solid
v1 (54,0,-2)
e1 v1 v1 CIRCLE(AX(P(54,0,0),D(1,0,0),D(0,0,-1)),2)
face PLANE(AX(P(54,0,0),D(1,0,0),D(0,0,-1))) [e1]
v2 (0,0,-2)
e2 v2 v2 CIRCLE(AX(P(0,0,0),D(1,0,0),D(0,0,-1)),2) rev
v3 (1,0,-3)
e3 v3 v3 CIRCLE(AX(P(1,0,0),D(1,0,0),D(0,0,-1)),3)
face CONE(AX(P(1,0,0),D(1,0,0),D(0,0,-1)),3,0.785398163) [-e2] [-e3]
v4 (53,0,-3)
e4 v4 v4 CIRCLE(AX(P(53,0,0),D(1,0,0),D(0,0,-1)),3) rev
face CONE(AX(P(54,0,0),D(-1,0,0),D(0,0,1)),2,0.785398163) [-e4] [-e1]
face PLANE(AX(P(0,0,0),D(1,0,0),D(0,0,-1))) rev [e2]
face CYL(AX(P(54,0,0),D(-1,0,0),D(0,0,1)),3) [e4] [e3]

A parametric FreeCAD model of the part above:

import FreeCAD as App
import Part
import Sketcher
from FreeCAD import Vector


def edges_at(feature, points):
    """Names of the edges that pass closest to the given points."""
    edges = feature.Shape.Edges
    near = lambda p: min(range(len(edges)), key=lambda i: edges[i].distToShape(Part.Vertex(*p))[0])
    return sorted({f"Edge{near(p) + 1}" for p in points})

doc = App.newDocument("Part")
params = doc.addObject("Spreadsheet::Sheet", "Params")
for row, (alias, value) in enumerate([
    ("sketch1_diameter", "6 mm"),
    ("pad1_length", "54 mm"),
    ("chamfer_size", "1 mm"),
], start=1):
    params.set(f"A{row}", alias)
    params.set(f"B{row}", "=" + value)
    params.setAlias(f"B{row}", alias)

body = doc.addObject("PartDesign::Body", "Body")

sketch1 = body.newObject("Sketcher::SketchObject", "Sketch")
sketch1.AttachmentSupport = (doc.getObject("YZ_Plane"), [""])
sketch1.MapMode = "FlatFace"
sketch1.addGeometry(Part.Circle(Vector(0, 0, 0), Vector(0, 0, 1), 3), False)
sketch1.addConstraint(Sketcher.Constraint("Coincident", 0, 3, -1, 1))
sketch1.addConstraint(Sketcher.Constraint("Diameter", 0, 6.0))
sketch1.setExpression("Constraints[1]", "Params.sketch1_diameter")
pad1 = body.newObject("PartDesign::Pad", "Pad")
pad1.Profile = sketch1
pad1.setExpression("Length", "Params.pad1_length")
doc.recompute()

chamfer = body.newObject("PartDesign::Chamfer", "Chamfer")
chamfer.Base = (pad1, edges_at(pad1, [(0, 0, 3), (54, 0, 3)]))
chamfer.setExpression("Size", "Params.chamfer_size")

doc.recompute()
